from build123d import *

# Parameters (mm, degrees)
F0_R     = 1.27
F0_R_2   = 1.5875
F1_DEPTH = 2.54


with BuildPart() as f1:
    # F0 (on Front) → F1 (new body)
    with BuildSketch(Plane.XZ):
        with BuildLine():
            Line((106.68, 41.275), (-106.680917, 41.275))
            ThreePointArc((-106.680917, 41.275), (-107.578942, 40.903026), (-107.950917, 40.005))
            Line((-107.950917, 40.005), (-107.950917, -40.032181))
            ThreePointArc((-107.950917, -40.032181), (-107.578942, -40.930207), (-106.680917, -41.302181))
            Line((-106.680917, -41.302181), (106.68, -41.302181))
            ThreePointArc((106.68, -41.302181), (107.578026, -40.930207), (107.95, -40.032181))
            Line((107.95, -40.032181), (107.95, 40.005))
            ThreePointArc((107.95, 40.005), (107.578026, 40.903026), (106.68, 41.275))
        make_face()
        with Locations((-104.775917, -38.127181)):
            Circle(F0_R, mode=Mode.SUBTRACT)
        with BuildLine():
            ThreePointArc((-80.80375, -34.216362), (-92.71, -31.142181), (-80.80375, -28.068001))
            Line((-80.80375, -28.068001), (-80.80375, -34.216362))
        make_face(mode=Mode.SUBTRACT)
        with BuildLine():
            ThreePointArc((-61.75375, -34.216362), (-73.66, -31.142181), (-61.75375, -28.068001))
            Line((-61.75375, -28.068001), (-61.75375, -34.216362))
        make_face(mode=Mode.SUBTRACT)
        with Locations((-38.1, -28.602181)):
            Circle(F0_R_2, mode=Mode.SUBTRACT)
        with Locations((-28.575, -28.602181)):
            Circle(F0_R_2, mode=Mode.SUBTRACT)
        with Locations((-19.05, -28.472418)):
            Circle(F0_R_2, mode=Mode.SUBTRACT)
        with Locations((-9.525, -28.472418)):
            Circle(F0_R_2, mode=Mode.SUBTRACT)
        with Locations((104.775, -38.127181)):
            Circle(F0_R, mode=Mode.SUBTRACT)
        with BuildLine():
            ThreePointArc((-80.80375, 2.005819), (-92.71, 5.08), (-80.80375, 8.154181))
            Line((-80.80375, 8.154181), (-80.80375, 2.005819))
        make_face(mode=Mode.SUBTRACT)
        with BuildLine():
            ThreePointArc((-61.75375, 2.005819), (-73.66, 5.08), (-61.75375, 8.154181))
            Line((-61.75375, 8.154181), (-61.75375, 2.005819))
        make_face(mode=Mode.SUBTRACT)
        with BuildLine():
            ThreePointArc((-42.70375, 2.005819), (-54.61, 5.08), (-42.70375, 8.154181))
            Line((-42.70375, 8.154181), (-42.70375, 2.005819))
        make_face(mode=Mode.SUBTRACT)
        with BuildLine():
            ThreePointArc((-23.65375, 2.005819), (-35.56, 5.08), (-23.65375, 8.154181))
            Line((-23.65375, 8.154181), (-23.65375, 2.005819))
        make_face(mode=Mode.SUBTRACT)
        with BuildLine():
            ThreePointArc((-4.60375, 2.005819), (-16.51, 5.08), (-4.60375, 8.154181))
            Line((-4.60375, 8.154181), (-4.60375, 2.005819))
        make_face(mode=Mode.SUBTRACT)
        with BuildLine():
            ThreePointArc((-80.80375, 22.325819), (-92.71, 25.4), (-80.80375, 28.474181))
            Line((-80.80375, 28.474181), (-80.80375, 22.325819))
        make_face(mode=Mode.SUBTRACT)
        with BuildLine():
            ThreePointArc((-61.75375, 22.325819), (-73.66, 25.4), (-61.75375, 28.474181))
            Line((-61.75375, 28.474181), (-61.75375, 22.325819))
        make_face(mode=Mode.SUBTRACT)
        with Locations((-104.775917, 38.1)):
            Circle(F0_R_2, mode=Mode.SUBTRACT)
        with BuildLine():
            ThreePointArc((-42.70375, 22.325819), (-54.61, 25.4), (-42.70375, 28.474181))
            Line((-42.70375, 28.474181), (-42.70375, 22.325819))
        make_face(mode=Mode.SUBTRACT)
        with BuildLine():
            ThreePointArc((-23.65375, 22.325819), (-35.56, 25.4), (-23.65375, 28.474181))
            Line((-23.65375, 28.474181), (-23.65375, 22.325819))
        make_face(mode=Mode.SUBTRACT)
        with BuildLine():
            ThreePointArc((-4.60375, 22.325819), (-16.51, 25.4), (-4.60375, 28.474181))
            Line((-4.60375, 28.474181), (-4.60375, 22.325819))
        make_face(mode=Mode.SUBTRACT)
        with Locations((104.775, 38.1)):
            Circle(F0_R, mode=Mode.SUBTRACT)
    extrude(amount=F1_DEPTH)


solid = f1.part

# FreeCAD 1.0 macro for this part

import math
import FreeCAD as App
import Part
import Sketcher
Q = App.Units.Quantity

doc = App.newDocument("Part")
body = doc.addObject("PartDesign::Body", "Body")

sketch1 = doc.addObject("Sketcher::SketchObject", "Sketch")
body.addObject(sketch1)
sketch1.AttachmentSupport = (doc.XZ_Plane, [""])
sketch1.MapMode = "FlatFace"
sketch1.addGeometry([
    Part.LineSegment(App.Vector(106.68, 41.275, 0), App.Vector(-106.680917, 41.275, 0)),
    Part.ArcOfCircle(Part.Circle(App.Vector(-106.680917, 40.005, 0), App.Vector(0, 0, 1), 1.27), math.radians(90.000017), math.radians(179.999983)),
    Part.LineSegment(App.Vector(-107.950917, 40.005, 0), App.Vector(-107.950917, -40.032181, 0)),
    Part.ArcOfCircle(Part.Circle(App.Vector(-106.680917, -40.032181, 0), App.Vector(0, 0, 1), 1.27), math.radians(-179.999983), math.radians(-90.000017)),
    Part.LineSegment(App.Vector(-106.680917, -41.302181, 0), App.Vector(106.68, -41.302181, 0)),
    Part.ArcOfCircle(Part.Circle(App.Vector(106.680001, -40.032182, 0), App.Vector(0, 0, 1), 1.269999), math.radians(-90.00006), math.radians(0.00006)),
    Part.LineSegment(App.Vector(107.95, -40.032181, 0), App.Vector(107.95, 40.005, 0)),
    Part.ArcOfCircle(Part.Circle(App.Vector(106.680001, 40.005001, 0), App.Vector(0, 0, 1), 1.269999), math.radians(-0.00006), math.radians(90.00006)),
    Part.Circle(App.Vector(-104.775917, -38.127181, 0), App.Vector(0, 0, 1), 1.27),
    Part.LineSegment(App.Vector(-80.80375, -28.068001, 0), App.Vector(-80.80375, -34.216362, 0)),
    Part.ArcOfCircle(Part.Circle(App.Vector(-86.36, -31.142181, 0), App.Vector(0, 0, 1), 6.35), math.radians(28.955024), math.radians(331.044976)),
    Part.LineSegment(App.Vector(-61.75375, -28.068001, 0), App.Vector(-61.75375, -34.216362, 0)),
    Part.ArcOfCircle(Part.Circle(App.Vector(-67.31, -31.142181, 0), App.Vector(0, 0, 1), 6.35), math.radians(28.955024), math.radians(331.044976)),
    Part.Circle(App.Vector(-38.1, -28.602181, 0), App.Vector(0, 0, 1), 1.5875),
    Part.Circle(App.Vector(-28.575, -28.602181, 0), App.Vector(0, 0, 1), 1.5875),
    Part.Circle(App.Vector(-19.05, -28.472418, 0), App.Vector(0, 0, 1), 1.5875),
    Part.Circle(App.Vector(-9.525, -28.472418, 0), App.Vector(0, 0, 1), 1.5875),
    Part.Circle(App.Vector(104.775, -38.127181, 0), App.Vector(0, 0, 1), 1.27),
    Part.LineSegment(App.Vector(-80.80375, 8.154181, 0), App.Vector(-80.80375, 2.005819, 0)),
    Part.ArcOfCircle(Part.Circle(App.Vector(-86.36, 5.08, 0), App.Vector(0, 0, 1), 6.35), math.radians(28.955029), math.radians(331.044971)),
    Part.LineSegment(App.Vector(-61.75375, 8.154181, 0), App.Vector(-61.75375, 2.005819, 0)),
    Part.ArcOfCircle(Part.Circle(App.Vector(-67.31, 5.08, 0), App.Vector(0, 0, 1), 6.35), math.radians(28.955029), math.radians(331.044971)),
    Part.LineSegment(App.Vector(-42.70375, 8.154181, 0), App.Vector(-42.70375, 2.005819, 0)),
    Part.ArcOfCircle(Part.Circle(App.Vector(-48.26, 5.08, 0), App.Vector(0, 0, 1), 6.35), math.radians(28.955029), math.radians(331.044971)),
    Part.LineSegment(App.Vector(-23.65375, 8.154181, 0), App.Vector(-23.65375, 2.005819, 0)),
    Part.ArcOfCircle(Part.Circle(App.Vector(-29.21, 5.08, 0), App.Vector(0, 0, 1), 6.35), math.radians(28.955029), math.radians(331.044971)),
    Part.LineSegment(App.Vector(-4.60375, 8.154181, 0), App.Vector(-4.60375, 2.005819, 0)),
    Part.ArcOfCircle(Part.Circle(App.Vector(-10.16, 5.08, 0), App.Vector(0, 0, 1), 6.35), math.radians(28.955029), math.radians(331.044971)),
    Part.LineSegment(App.Vector(-80.80375, 28.474181, 0), App.Vector(-80.80375, 22.325819, 0)),
    Part.ArcOfCircle(Part.Circle(App.Vector(-86.36, 25.4, 0), App.Vector(0, 0, 1), 6.35), math.radians(28.955029), math.radians(331.044971)),
    Part.LineSegment(App.Vector(-61.75375, 28.474181, 0), App.Vector(-61.75375, 22.325819, 0)),
    Part.ArcOfCircle(Part.Circle(App.Vector(-67.31, 25.4, 0), App.Vector(0, 0, 1), 6.35), math.radians(28.955029), math.radians(331.044971)),
    Part.Circle(App.Vector(-104.775917, 38.1, 0), App.Vector(0, 0, 1), 1.5875),
    Part.LineSegment(App.Vector(-42.70375, 28.474181, 0), App.Vector(-42.70375, 22.325819, 0)),
    Part.ArcOfCircle(Part.Circle(App.Vector(-48.26, 25.4, 0), App.Vector(0, 0, 1), 6.35), math.radians(28.955029), math.radians(331.044971)),
    Part.LineSegment(App.Vector(-23.65375, 28.474181, 0), App.Vector(-23.65375, 22.325819, 0)),
    Part.ArcOfCircle(Part.Circle(App.Vector(-29.21, 25.4, 0), App.Vector(0, 0, 1), 6.35), math.radians(28.955029), math.radians(331.044971)),
    Part.LineSegment(App.Vector(-4.60375, 28.474181, 0), App.Vector(-4.60375, 22.325819, 0)),
    Part.ArcOfCircle(Part.Circle(App.Vector(-10.16, 25.4, 0), App.Vector(0, 0, 1), 6.35), math.radians(28.955029), math.radians(331.044971)),
    Part.Circle(App.Vector(104.775, 38.1, 0), App.Vector(0, 0, 1), 1.27),
], False)
sketch1.addConstraint([
    Sketcher.Constraint("Tangent", 0, 2, 1, 1),
    Sketcher.Constraint("Tangent", 1, 2, 2, 1),
    Sketcher.Constraint("Tangent", 2, 2, 3, 1),
    Sketcher.Constraint("Tangent", 3, 2, 4, 1),
    Sketcher.Constraint("Tangent", 4, 2, 5, 1),
    Sketcher.Constraint("Tangent", 5, 2, 6, 1),
    Sketcher.Constraint("Tangent", 6, 2, 7, 1),
    Sketcher.Constraint("Tangent", 7, 2, 0, 1),
    Sketcher.Constraint("Coincident", 9, 1, 10, 1),
    Sketcher.Constraint("Coincident", 10, 2, 9, 2),
    Sketcher.Constraint("Coincident", 11, 1, 12, 1),
    Sketcher.Constraint("Coincident", 12, 2, 11, 2),
    Sketcher.Constraint("Coincident", 18, 1, 19, 1),
    Sketcher.Constraint("Coincident", 19, 2, 18, 2),
    Sketcher.Constraint("Coincident", 20, 1, 21, 1),
    Sketcher.Constraint("Coincident", 21, 2, 20, 2),
    Sketcher.Constraint("Coincident", 22, 1, 23, 1),
    Sketcher.Constraint("Coincident", 23, 2, 22, 2),
    Sketcher.Constraint("Coincident", 24, 1, 25, 1),
    Sketcher.Constraint("Coincident", 25, 2, 24, 2),
    Sketcher.Constraint("Coincident", 26, 1, 27, 1),
    Sketcher.Constraint("Coincident", 27, 2, 26, 2),
    Sketcher.Constraint("Coincident", 28, 1, 29, 1),
    Sketcher.Constraint("Coincident", 29, 2, 28, 2),
    Sketcher.Constraint("Coincident", 30, 1, 31, 1),
    Sketcher.Constraint("Coincident", 31, 2, 30, 2),
    Sketcher.Constraint("Coincident", 33, 1, 34, 1),
    Sketcher.Constraint("Coincident", 34, 2, 33, 2),
    Sketcher.Constraint("Coincident", 35, 1, 36, 1),
    Sketcher.Constraint("Coincident", 36, 2, 35, 2),
    Sketcher.Constraint("Coincident", 37, 1, 38, 1),
    Sketcher.Constraint("Coincident", 38, 2, 37, 2),
    Sketcher.Constraint("Horizontal", 0),
    Sketcher.Constraint("Vertical", 2),
    Sketcher.Constraint("Horizontal", 4),
    Sketcher.Constraint("Vertical", 6),
    Sketcher.Constraint("Vertical", 9),
    Sketcher.Constraint("Vertical", 11),
    Sketcher.Constraint("Vertical", 18),
    Sketcher.Constraint("Vertical", 20),
    Sketcher.Constraint("Vertical", 22),
    Sketcher.Constraint("Vertical", 24),
    Sketcher.Constraint("Vertical", 26),
    Sketcher.Constraint("Vertical", 28),
    Sketcher.Constraint("Vertical", 30),
    Sketcher.Constraint("Vertical", 33),
    Sketcher.Constraint("Vertical", 35),
    Sketcher.Constraint("Vertical", 37),
    Sketcher.Constraint("Equal", 1, 3),
    Sketcher.Constraint("Equal", 3, 5),
    Sketcher.Constraint("Equal", 5, 7),
    Sketcher.Constraint("Equal", 7, 8),
    Sketcher.Constraint("Equal", 10, 12),
    Sketcher.Constraint("Equal", 13, 14),
    Sketcher.Constraint("Equal", 14, 15),
    Sketcher.Constraint("Equal", 15, 16),
    Sketcher.Constraint("Equal", 8, 17),
    Sketcher.Constraint("Equal", 12, 19),
    Sketcher.Constraint("Equal", 19, 21),
    Sketcher.Constraint("Equal", 21, 23),
    Sketcher.Constraint("Equal", 23, 25),
    Sketcher.Constraint("Equal", 25, 27),
    Sketcher.Constraint("Equal", 27, 29),
    Sketcher.Constraint("Equal", 29, 31),
    Sketcher.Constraint("Equal", 16, 32),
    Sketcher.Constraint("Equal", 31, 34),
    Sketcher.Constraint("Equal", 34, 36),
    Sketcher.Constraint("Equal", 36, 38),
    Sketcher.Constraint("Equal", 17, 39),
    Sketcher.Constraint("Horizontal", 10, 3, 12, 3),
    Sketcher.Constraint("Horizontal", 13, 3, 14, 3),
    Sketcher.Constraint("Horizontal", 15, 3, 16, 3),
    Sketcher.Constraint("Horizontal", 8, 3, 17, 3),
    Sketcher.Constraint("Horizontal", 19, 3, 21, 3),
    Sketcher.Constraint("Horizontal", 21, 3, 23, 3),
    Sketcher.Constraint("Horizontal", 23, 3, 25, 3),
    Sketcher.Constraint("Horizontal", 25, 3, 27, 3),
    Sketcher.Constraint("Horizontal", 29, 3, 31, 3),
    Sketcher.Constraint("Horizontal", 31, 3, 34, 3),
    Sketcher.Constraint("Horizontal", 34, 3, 36, 3),
    Sketcher.Constraint("Horizontal", 36, 3, 38, 3),
    Sketcher.Constraint("Horizontal", 32, 3, 39, 3),
    Sketcher.Constraint("Horizontal", 9, 1, 11, 1),
    Sketcher.Constraint("Horizontal", 18, 1, 20, 1),
    Sketcher.Constraint("Horizontal", 20, 1, 22, 1),
    Sketcher.Constraint("Horizontal", 22, 1, 24, 1),
    Sketcher.Constraint("Horizontal", 24, 1, 26, 1),
    Sketcher.Constraint("Horizontal", 28, 1, 30, 1),
    Sketcher.Constraint("Horizontal", 30, 1, 33, 1),
    Sketcher.Constraint("Horizontal", 33, 1, 35, 1),
    Sketcher.Constraint("Horizontal", 35, 1, 37, 1),
    Sketcher.Constraint("Vertical", 10, 3, 19, 3),
    Sketcher.Constraint("Vertical", 12, 3, 21, 3),
    Sketcher.Constraint("Vertical", 19, 3, 29, 3),
    Sketcher.Constraint("Vertical", 21, 3, 31, 3),
    Sketcher.Constraint("Vertical", 8, 3, 32, 3),
    Sketcher.Constraint("Vertical", 23, 3, 34, 3),
    Sketcher.Constraint("Vertical", 25, 3, 36, 3),
    Sketcher.Constraint("Vertical", 27, 3, 38, 3),
    Sketcher.Constraint("Vertical", 17, 3, 39, 3),
    Sketcher.Constraint("Vertical", 10, 2, 18, 1),
    Sketcher.Constraint("Vertical", 19, 2, 28, 1),
    Sketcher.Constraint("Diameter", 8, Q("0.1 in")),
    Sketcher.Constraint("Radius", 10, Q("0.25 in")),
    Sketcher.Constraint("Diameter", 13, Q("0.125 in")),
    Sketcher.Constraint("DistanceY", -1, 1, 29, 3, Q("1 in")),
    Sketcher.Constraint("DistanceX", -1, 1, 5, 3, Q("4.2000001 in")),
    Sketcher.Constraint("DistanceX", 10, 3, -1, 1, Q("3.4 in")),
    Sketcher.Constraint("DistanceX", 13, 3, -1, 1, Q("1.5 in")),
    Sketcher.Constraint("DistanceY", -1, 1, 19, 3, Q("0.2 in")),
    Sketcher.Constraint("DistanceX", 23, 3, -1, 1, Q("1.9 in")),
    Sketcher.Constraint("DistanceX", 27, 3, -1, 1, Q("0.4 in")),
    Sketcher.Constraint("DistanceY", -1, 1, 32, 3, Q("1.5 in")),
    Sketcher.Constraint("DistanceY", 12, 3, 13, 3, Q("0.1 in")),
    Sketcher.Constraint("DistanceX", 12, 3, 15, 3, Q("1.9 in")),
    Sketcher.Constraint("DistanceX", 16, 3, 17, 3, Q("4.5 in")),
    Sketcher.Constraint("DistanceX", 25, 3, 15, 3, Q("0.4 in")),
    Sketcher.Constraint("DistanceY", 3, 2, 10, 3, Q("0.4 in")),
    Sketcher.Constraint("DistanceX", 12, 3, -1, 1, Q("2.65 in")),
    Sketcher.Constraint("DistanceX", 14, 3, 16, 3, Q("0.75 in")),
    Sketcher.Constraint("DistanceY", -1, 1, 1, 3, Q("1.575 in")),
    Sketcher.Constraint("DistanceX", 14, 3, -1, 1, Q("1.125 in")),
    Sketcher.Constraint("DistanceX", 3, 3, 8, 3, Q("0.075 in")),
    Sketcher.Constraint("DistanceY", 3, 3, 8, 3, Q("0.075 in")),
    Sketcher.Constraint("DistanceX", 10, 3, 9, 1, Q("0.21875 in")),
    Sketcher.Constraint("DistanceY", 2, 2, 2, 1, Q("80.037181 mm")),
    Sketcher.Constraint("DistanceX", 0, 2, 0, 1, Q("213.360917 mm")),
    Sketcher.Constraint("DistanceY", 15, 3, -1, 1, Q("28.472418 mm")),
])
pad1 = doc.addObject("PartDesign::Pad", "Pad")
body.addObject(pad1)
pad1.Profile = sketch1
pad1.Length = Q("0.1 in")

doc.recompute()
